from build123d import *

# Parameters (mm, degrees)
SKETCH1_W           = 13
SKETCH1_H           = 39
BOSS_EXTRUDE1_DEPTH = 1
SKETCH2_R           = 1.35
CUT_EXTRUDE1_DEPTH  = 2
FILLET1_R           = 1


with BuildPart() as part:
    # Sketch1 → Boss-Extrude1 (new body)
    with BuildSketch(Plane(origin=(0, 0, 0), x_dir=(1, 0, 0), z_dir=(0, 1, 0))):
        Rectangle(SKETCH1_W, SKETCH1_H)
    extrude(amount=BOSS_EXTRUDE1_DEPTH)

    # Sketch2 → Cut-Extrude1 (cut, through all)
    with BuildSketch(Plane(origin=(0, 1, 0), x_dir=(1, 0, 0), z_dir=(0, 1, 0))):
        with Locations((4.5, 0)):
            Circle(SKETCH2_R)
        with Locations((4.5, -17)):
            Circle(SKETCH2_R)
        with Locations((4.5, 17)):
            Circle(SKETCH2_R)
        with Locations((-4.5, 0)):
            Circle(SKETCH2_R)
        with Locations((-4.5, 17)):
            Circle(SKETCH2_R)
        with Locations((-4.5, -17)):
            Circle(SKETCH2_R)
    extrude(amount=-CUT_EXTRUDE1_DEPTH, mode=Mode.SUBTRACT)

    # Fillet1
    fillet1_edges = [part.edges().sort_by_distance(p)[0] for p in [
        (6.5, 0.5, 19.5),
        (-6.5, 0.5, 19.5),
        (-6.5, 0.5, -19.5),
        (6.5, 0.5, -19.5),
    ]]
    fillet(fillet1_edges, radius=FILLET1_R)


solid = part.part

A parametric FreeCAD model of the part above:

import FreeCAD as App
import Part
import Sketcher
from FreeCAD import Vector
Q = App.Units.Quantity


def edges_at(feature, points):
    """Names of the edges that pass closest to the given points."""
    edges = feature.Shape.Edges
    near = lambda p: min(range(len(edges)), key=lambda i: edges[i].distToShape(Part.Vertex(*p))[0])
    return sorted({f"Edge{near(p) + 1}" for p in points})


def add_polygon(sketch, points):
    """Adds a closed chain of lines whose ends are joined by coincident constraints."""
    first, n = sketch.GeometryCount, len(points)
    for a, b in zip(points, points[1:] + points[:1]):
        sketch.addGeometry(Part.LineSegment(App.Vector(*a, 0), App.Vector(*b, 0)), False)
    for i in range(n):
        sketch.addConstraint(Sketcher.Constraint("Coincident", first + i, 2, first + (i + 1) % n, 1))

doc = App.newDocument("Part")
body = doc.addObject("PartDesign::Body", "Body")

# Sketch on XZ plane
sketch1 = body.newObject("Sketcher::SketchObject", "Sketch")
sketch1.AttachmentSupport = (doc.getObject("XZ_Plane"), [""])
sketch1.MapMode = "FlatFace"
add_polygon(sketch1, [(-6, -20), (-6, 20), (6, 20), (6, -20)])  # lines 0-3
sketch1.addConstraint([
    Sketcher.Constraint("Vertical", 0),
    Sketcher.Constraint("Horizontal", 1),
    Sketcher.Constraint("Vertical", 2),
    Sketcher.Constraint("Horizontal", 3),
    Sketcher.Constraint("Symmetric", 0, 2, 2, 2, -1, 1),
    Sketcher.Constraint("DistanceX", 1, 1, 1, 2, Q("13 mm")),
    Sketcher.Constraint("DistanceY", 0, 1, 0, 2, Q("39 mm")),
])
pad1 = body.newObject("PartDesign::Pad", "Pad")
pad1.Profile = sketch1
pad1.Length = 1
pad1.Reversed = True

# Sketch on XZ plane
sketch2 = body.newObject("Sketcher::SketchObject", "Sketch001")
sketch2.AttachmentSupport = (doc.getObject("XZ_Plane"), [""])
sketch2.MapMode = "FlatFace"
sketch2.AttachmentOffset = App.Placement(Vector(0, 0, -1), App.Rotation())
sketch2.addGeometry([
    Part.Circle(Vector(4.5, 0, 0), Vector(0, 0, 1), 1.4),  # 0
    Part.Circle(Vector(4.5, 17, 0), Vector(0, 0, 1), 1.4),  # 1
    Part.Circle(Vector(4.5, -17, 0), Vector(0, 0, 1), 1.4),  # 2
    Part.Circle(Vector(-4.5, 0, 0), Vector(0, 0, 1), 1.4),  # 3
    Part.Circle(Vector(-4.5, -17, 0), Vector(0, 0, 1), 1.4),  # 4
    Part.Circle(Vector(-4.5, 17, 0), Vector(0, 0, 1), 1.4),  # 5
], False)
sketch2.addConstraint([
    Sketcher.Constraint("Equal", 0, 1),
    Sketcher.Constraint("Equal", 1, 2),
    Sketcher.Constraint("Equal", 2, 3),
    Sketcher.Constraint("Equal", 3, 4),
    Sketcher.Constraint("Equal", 4, 5),
    Sketcher.Constraint("Symmetric", 0, 3, 3, 3, -1, 1),
    Sketcher.Constraint("Symmetric", 1, 3, 4, 3, -1, 1),
    Sketcher.Constraint("Symmetric", 2, 3, 5, 3, -1, 1),
    Sketcher.Constraint("Symmetric", 2, 3, 4, 3, -2),
    Sketcher.Constraint("PointOnObject", 0, 3, -1),
    Sketcher.Constraint("Vertical", 0, 3, 1, 3),
    Sketcher.Constraint("Diameter", 0, Q("2.7 mm")),
    Sketcher.Constraint("DistanceY", -1, 1, 1, 3, Q("17 mm")),
    Sketcher.Constraint("DistanceX", 3, 3, 0, 3, Q("9 mm")),
])
pocket1 = body.newObject("PartDesign::Pocket", "Pocket")
pocket1.Profile = sketch2
pocket1.Type = "ThroughAll"
pocket1.Reversed = True
doc.recompute()

fillet = body.newObject("PartDesign::Fillet", "Fillet")
fillet.Base = (pocket1, edges_at(pocket1, [
    (6.5, 0.5, 19.5),
    (-6.5, 0.5, 19.5),
    (-6.5, 0.5, -19.5),
    (6.5, 0.5, -19.5),
]))
fillet.Radius = 1

doc.recompute()
